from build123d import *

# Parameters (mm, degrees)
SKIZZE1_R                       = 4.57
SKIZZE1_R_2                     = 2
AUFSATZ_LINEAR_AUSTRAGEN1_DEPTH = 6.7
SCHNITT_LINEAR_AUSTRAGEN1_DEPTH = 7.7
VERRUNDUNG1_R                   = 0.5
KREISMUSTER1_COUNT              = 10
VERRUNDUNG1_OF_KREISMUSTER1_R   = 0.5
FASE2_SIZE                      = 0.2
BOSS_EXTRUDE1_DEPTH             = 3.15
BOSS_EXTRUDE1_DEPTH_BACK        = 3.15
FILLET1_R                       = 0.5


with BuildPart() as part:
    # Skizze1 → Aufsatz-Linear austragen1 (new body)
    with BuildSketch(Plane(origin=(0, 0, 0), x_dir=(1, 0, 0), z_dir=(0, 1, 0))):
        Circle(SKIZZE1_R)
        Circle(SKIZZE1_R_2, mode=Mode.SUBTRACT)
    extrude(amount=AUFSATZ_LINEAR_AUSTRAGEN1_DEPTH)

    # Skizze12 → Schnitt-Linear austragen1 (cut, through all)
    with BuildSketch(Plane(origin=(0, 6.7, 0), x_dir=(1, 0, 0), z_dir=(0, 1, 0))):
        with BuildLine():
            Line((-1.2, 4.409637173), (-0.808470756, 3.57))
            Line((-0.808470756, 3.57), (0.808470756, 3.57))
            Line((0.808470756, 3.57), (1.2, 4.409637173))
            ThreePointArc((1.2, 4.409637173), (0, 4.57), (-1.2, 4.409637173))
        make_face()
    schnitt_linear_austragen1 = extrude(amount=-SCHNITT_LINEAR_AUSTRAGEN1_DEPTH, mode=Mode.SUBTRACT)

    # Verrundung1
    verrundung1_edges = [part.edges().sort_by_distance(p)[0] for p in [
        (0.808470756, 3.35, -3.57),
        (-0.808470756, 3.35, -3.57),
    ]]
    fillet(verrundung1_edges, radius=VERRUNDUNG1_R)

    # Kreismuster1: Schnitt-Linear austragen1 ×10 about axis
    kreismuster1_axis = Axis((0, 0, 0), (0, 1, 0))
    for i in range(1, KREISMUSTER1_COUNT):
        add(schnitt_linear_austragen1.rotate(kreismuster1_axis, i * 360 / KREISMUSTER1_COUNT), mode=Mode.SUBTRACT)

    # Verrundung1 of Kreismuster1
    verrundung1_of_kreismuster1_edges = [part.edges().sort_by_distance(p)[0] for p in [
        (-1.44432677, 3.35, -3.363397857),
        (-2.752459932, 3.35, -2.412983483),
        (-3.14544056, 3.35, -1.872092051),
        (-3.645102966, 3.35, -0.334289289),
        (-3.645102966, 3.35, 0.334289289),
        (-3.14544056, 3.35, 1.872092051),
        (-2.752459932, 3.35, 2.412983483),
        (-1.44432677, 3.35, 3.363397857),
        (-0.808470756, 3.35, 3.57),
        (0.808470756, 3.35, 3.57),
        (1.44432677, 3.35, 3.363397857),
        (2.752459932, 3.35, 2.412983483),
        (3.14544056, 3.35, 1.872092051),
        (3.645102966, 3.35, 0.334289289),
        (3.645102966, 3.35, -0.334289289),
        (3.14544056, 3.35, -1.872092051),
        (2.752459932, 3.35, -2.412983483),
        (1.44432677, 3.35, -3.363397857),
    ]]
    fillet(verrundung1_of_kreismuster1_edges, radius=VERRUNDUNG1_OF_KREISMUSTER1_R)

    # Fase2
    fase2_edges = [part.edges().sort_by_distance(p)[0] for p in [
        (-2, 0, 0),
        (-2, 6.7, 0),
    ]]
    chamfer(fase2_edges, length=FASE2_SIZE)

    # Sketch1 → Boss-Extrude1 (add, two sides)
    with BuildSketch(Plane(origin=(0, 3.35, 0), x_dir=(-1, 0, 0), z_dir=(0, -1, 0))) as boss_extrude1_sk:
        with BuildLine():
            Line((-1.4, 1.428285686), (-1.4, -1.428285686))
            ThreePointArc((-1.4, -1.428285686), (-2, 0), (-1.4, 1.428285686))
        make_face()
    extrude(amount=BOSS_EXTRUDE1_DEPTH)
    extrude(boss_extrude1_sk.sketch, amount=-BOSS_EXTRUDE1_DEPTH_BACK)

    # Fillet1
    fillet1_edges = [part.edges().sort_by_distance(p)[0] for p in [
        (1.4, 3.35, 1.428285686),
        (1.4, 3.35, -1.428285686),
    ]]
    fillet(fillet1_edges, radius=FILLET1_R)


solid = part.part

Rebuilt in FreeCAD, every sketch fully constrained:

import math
import FreeCAD as App
import Part
import Sketcher

V = App.Vector
Q = App.Units.Quantity


def edges_at(feature, points):
    """Names of the edges that pass closest to the given points."""
    edges = feature.Shape.Edges
    near = lambda p: min(range(len(edges)), key=lambda i: edges[i].distToShape(Part.Vertex(*p))[0])
    return sorted({f"Edge{near(p) + 1}" for p in points})

doc = App.newDocument("Part")
params = doc.addObject("Spreadsheet::Sheet", "Params")
for row, (alias, value) in enumerate([
    ("sketch1_diameter", "4 mm"),
    ("sketch1_diameter2", "9.14 mm"),
    ("pad1_length", "6.7 mm"),
    ("sketch2_radius", "4.57 mm"),
    ("fillet_radius", "0.5 mm"),
    ("fillet2_radius", "0.5 mm"),
    ("chamfer_size", "0.2 mm"),
    ("sketch3_radius", "2 mm"),
    ("pad2_length", "3.15 mm"),
    ("pad2_length2", "3.15 mm"),
    ("fillet3_radius", "0.5 mm"),
], start=1):
    params.set(f"A{row}", alias)
    params.set(f"B{row}", "=" + value)
    params.setAlias(f"B{row}", alias)

body = doc.addObject("PartDesign::Body", "Body")

# Sketch on XZ plane
sketch1 = body.newObject("Sketcher::SketchObject", "Sketch")
sketch1.AttachmentSupport = (doc.getObject("XZ_Plane"), [""])
sketch1.MapMode = "FlatFace"
sketch1.addGeometry(Part.Circle(V(0, 0, 0), V(0, 0, 1), 4.57), False)
sketch1.addGeometry(Part.Circle(V(0, 0, 0), V(0, 0, 1), 2), False)
sketch1.addConstraint(Sketcher.Constraint("Coincident", 0, 3, -1, 1))
sketch1.addConstraint(Sketcher.Constraint("Coincident", 1, 3, -1, 1))
sketch1.addConstraint(Sketcher.Constraint("Diameter", 1, Q("4 mm")))
sketch1.addConstraint(Sketcher.Constraint("Diameter", 0, Q("9.14 mm")))
sketch1.setExpression("Constraints[2]", "Params.sketch1_diameter")
sketch1.setExpression("Constraints[3]", "Params.sketch1_diameter2")
pad1 = body.newObject("PartDesign::Pad", "Pad")
pad1.Profile = sketch1
pad1.setExpression("Length", "Params.pad1_length")
pad1.Reversed = True

# Sketch on XZ plane
sketch2 = body.newObject("Sketcher::SketchObject", "Sketch001")
sketch2.AttachmentSupport = (doc.getObject("XZ_Plane"), [""])
sketch2.MapMode = "FlatFace"
sketch2.AttachmentOffset = App.Placement(V(0, 0, -6.7), App.Rotation())
sketch2.addGeometry(Part.LineSegment(V(-1.2, -4.409637, 0), V(-0.808471, -3.57, 0)), False)
sketch2.addGeometry(Part.LineSegment(V(-0.808471, -3.57, 0), V(0.808471, -3.57, 0)), False)
sketch2.addGeometry(Part.LineSegment(V(0.808471, -3.57, 0), V(1.2, -4.409637, 0)), False)
sketch2.addGeometry(Part.ArcOfCircle(Part.Circle(V(0, 0, 0), V(0, 0, 1), 4.57), math.radians(-105.223328), math.radians(-74.776672)), False)
sketch2.addConstraint(Sketcher.Constraint("Coincident", 0, 2, 1, 1))
sketch2.addConstraint(Sketcher.Constraint("Coincident", 1, 2, 2, 1))
sketch2.addConstraint(Sketcher.Constraint("Coincident", 2, 2, 3, 2))
sketch2.addConstraint(Sketcher.Constraint("Coincident", 3, 1, 0, 1))
sketch2.addConstraint(Sketcher.Constraint("Horizontal", 1))
sketch2.addConstraint(Sketcher.Constraint("Coincident", 3, 3, -1, 1))
sketch2.addConstraint(Sketcher.Constraint("Horizontal", 2, 2, 3, 1))
sketch2.addConstraint(Sketcher.Constraint("Equal", 0, 2))
sketch2.addConstraint(Sketcher.Constraint("Angle", 0, Q("65 deg")))
sketch2.addConstraint(Sketcher.Constraint("Radius", 3, Q("4.57 mm")))
sketch2.addConstraint(Sketcher.Constraint("DistanceX", -1, 1, 2, 2, Q("1.2 mm")))
sketch2.addConstraint(Sketcher.Constraint("DistanceY", 0, 2, -1, 1, Q("3.57 mm")))
sketch2.setExpression("Constraints[9]", "Params.sketch2_radius")
pocket1 = body.newObject("PartDesign::Pocket", "Pocket")
pocket1.Profile = sketch2
pocket1.Type = "ThroughAll"
pocket1.Reversed = True
doc.recompute()

fillet = body.newObject("PartDesign::Fillet", "Fillet")
fillet.Base = (pocket1, edges_at(pocket1, [(0.808, 3.35, -3.57), (-0.808, 3.35, -3.57)]))
fillet.setExpression("Radius", "Params.fillet_radius")
doc.recompute()

polarpattern = body.newObject("PartDesign::PolarPattern", "PolarPattern")
polarpattern.Originals = [pocket1]
polarpattern.Axis = (doc.getObject("Y_Axis"), [""])
polarpattern.Angle = 360
polarpattern.Occurrences = 10
body.Tip = polarpattern
doc.recompute()

fillet2 = body.newObject("PartDesign::Fillet", "Fillet001")
fillet2.Base = (polarpattern, edges_at(polarpattern, [
    (-1.444, 3.35, -3.363),
    (-2.752, 3.35, -2.413),
    (-3.145, 3.35, -1.872),
    (-3.645, 3.35, -0.334),
    (-3.645, 3.35, 0.334),
    (-3.145, 3.35, 1.872),
    (-2.752, 3.35, 2.413),
    (-1.444, 3.35, 3.363),
    (-0.808, 3.35, 3.57),
    (0.808, 3.35, 3.57),
    (1.444, 3.35, 3.363),
    (2.752, 3.35, 2.413),
    (3.145, 3.35, 1.872),
    (3.645, 3.35, 0.334),
    (3.645, 3.35, -0.334),
    (3.145, 3.35, -1.872),
    (2.752, 3.35, -2.413),
    (1.444, 3.35, -3.363),
]))
fillet2.setExpression("Radius", "Params.fillet2_radius")
doc.recompute()

chamfer = body.newObject("PartDesign::Chamfer", "Chamfer")
chamfer.Base = (fillet2, edges_at(fillet2, [(-2, 0, 0), (-2, 6.7, 0)]))
chamfer.setExpression("Size", "Params.chamfer_size")

# Sketch on XZ plane
sketch3 = body.newObject("Sketcher::SketchObject", "Sketch002")
sketch3.AttachmentSupport = (doc.getObject("XZ_Plane"), [""])
sketch3.MapMode = "FlatFace"
sketch3.AttachmentOffset = App.Placement(V(0, 0, -3.35), App.Rotation())
sketch3.addGeometry(Part.LineSegment(V(1.4, 1.428286, 0), V(1.4, -1.428286, 0)), False)
sketch3.addGeometry(Part.ArcOfCircle(Part.Circle(V(0, 0, 0), V(0, 0, 1), 2), math.radians(-45.572996), math.radians(45.572996)), False)
sketch3.addConstraint(Sketcher.Constraint("Coincident", 0, 1, 1, 2))
sketch3.addConstraint(Sketcher.Constraint("Coincident", 1, 1, 0, 2))
sketch3.addConstraint(Sketcher.Constraint("Vertical", 0))
sketch3.addConstraint(Sketcher.Constraint("Coincident", 1, 3, -1, 1))
sketch3.addConstraint(Sketcher.Constraint("Radius", 1, Q("2 mm")))
sketch3.addConstraint(Sketcher.Constraint("DistanceX", -1, 1, 0, 1, Q("1.4 mm")))
sketch3.setExpression("Constraints[4]", "Params.sketch3_radius")
pad2 = body.newObject("PartDesign::Pad", "Pad001")
pad2.Profile = sketch3
pad2.Type = "TwoLengths"
pad2.setExpression("Length", "Params.pad2_length")
pad2.setExpression("Length2", "Params.pad2_length2")
doc.recompute()

fillet3 = body.newObject("PartDesign::Fillet", "Fillet002")
fillet3.Base = (pad2, edges_at(pad2, [(1.4, 3.35, 1.428), (1.4, 3.35, -1.428)]))
fillet3.setExpression("Radius", "Params.fillet3_radius")

doc.recompute()
